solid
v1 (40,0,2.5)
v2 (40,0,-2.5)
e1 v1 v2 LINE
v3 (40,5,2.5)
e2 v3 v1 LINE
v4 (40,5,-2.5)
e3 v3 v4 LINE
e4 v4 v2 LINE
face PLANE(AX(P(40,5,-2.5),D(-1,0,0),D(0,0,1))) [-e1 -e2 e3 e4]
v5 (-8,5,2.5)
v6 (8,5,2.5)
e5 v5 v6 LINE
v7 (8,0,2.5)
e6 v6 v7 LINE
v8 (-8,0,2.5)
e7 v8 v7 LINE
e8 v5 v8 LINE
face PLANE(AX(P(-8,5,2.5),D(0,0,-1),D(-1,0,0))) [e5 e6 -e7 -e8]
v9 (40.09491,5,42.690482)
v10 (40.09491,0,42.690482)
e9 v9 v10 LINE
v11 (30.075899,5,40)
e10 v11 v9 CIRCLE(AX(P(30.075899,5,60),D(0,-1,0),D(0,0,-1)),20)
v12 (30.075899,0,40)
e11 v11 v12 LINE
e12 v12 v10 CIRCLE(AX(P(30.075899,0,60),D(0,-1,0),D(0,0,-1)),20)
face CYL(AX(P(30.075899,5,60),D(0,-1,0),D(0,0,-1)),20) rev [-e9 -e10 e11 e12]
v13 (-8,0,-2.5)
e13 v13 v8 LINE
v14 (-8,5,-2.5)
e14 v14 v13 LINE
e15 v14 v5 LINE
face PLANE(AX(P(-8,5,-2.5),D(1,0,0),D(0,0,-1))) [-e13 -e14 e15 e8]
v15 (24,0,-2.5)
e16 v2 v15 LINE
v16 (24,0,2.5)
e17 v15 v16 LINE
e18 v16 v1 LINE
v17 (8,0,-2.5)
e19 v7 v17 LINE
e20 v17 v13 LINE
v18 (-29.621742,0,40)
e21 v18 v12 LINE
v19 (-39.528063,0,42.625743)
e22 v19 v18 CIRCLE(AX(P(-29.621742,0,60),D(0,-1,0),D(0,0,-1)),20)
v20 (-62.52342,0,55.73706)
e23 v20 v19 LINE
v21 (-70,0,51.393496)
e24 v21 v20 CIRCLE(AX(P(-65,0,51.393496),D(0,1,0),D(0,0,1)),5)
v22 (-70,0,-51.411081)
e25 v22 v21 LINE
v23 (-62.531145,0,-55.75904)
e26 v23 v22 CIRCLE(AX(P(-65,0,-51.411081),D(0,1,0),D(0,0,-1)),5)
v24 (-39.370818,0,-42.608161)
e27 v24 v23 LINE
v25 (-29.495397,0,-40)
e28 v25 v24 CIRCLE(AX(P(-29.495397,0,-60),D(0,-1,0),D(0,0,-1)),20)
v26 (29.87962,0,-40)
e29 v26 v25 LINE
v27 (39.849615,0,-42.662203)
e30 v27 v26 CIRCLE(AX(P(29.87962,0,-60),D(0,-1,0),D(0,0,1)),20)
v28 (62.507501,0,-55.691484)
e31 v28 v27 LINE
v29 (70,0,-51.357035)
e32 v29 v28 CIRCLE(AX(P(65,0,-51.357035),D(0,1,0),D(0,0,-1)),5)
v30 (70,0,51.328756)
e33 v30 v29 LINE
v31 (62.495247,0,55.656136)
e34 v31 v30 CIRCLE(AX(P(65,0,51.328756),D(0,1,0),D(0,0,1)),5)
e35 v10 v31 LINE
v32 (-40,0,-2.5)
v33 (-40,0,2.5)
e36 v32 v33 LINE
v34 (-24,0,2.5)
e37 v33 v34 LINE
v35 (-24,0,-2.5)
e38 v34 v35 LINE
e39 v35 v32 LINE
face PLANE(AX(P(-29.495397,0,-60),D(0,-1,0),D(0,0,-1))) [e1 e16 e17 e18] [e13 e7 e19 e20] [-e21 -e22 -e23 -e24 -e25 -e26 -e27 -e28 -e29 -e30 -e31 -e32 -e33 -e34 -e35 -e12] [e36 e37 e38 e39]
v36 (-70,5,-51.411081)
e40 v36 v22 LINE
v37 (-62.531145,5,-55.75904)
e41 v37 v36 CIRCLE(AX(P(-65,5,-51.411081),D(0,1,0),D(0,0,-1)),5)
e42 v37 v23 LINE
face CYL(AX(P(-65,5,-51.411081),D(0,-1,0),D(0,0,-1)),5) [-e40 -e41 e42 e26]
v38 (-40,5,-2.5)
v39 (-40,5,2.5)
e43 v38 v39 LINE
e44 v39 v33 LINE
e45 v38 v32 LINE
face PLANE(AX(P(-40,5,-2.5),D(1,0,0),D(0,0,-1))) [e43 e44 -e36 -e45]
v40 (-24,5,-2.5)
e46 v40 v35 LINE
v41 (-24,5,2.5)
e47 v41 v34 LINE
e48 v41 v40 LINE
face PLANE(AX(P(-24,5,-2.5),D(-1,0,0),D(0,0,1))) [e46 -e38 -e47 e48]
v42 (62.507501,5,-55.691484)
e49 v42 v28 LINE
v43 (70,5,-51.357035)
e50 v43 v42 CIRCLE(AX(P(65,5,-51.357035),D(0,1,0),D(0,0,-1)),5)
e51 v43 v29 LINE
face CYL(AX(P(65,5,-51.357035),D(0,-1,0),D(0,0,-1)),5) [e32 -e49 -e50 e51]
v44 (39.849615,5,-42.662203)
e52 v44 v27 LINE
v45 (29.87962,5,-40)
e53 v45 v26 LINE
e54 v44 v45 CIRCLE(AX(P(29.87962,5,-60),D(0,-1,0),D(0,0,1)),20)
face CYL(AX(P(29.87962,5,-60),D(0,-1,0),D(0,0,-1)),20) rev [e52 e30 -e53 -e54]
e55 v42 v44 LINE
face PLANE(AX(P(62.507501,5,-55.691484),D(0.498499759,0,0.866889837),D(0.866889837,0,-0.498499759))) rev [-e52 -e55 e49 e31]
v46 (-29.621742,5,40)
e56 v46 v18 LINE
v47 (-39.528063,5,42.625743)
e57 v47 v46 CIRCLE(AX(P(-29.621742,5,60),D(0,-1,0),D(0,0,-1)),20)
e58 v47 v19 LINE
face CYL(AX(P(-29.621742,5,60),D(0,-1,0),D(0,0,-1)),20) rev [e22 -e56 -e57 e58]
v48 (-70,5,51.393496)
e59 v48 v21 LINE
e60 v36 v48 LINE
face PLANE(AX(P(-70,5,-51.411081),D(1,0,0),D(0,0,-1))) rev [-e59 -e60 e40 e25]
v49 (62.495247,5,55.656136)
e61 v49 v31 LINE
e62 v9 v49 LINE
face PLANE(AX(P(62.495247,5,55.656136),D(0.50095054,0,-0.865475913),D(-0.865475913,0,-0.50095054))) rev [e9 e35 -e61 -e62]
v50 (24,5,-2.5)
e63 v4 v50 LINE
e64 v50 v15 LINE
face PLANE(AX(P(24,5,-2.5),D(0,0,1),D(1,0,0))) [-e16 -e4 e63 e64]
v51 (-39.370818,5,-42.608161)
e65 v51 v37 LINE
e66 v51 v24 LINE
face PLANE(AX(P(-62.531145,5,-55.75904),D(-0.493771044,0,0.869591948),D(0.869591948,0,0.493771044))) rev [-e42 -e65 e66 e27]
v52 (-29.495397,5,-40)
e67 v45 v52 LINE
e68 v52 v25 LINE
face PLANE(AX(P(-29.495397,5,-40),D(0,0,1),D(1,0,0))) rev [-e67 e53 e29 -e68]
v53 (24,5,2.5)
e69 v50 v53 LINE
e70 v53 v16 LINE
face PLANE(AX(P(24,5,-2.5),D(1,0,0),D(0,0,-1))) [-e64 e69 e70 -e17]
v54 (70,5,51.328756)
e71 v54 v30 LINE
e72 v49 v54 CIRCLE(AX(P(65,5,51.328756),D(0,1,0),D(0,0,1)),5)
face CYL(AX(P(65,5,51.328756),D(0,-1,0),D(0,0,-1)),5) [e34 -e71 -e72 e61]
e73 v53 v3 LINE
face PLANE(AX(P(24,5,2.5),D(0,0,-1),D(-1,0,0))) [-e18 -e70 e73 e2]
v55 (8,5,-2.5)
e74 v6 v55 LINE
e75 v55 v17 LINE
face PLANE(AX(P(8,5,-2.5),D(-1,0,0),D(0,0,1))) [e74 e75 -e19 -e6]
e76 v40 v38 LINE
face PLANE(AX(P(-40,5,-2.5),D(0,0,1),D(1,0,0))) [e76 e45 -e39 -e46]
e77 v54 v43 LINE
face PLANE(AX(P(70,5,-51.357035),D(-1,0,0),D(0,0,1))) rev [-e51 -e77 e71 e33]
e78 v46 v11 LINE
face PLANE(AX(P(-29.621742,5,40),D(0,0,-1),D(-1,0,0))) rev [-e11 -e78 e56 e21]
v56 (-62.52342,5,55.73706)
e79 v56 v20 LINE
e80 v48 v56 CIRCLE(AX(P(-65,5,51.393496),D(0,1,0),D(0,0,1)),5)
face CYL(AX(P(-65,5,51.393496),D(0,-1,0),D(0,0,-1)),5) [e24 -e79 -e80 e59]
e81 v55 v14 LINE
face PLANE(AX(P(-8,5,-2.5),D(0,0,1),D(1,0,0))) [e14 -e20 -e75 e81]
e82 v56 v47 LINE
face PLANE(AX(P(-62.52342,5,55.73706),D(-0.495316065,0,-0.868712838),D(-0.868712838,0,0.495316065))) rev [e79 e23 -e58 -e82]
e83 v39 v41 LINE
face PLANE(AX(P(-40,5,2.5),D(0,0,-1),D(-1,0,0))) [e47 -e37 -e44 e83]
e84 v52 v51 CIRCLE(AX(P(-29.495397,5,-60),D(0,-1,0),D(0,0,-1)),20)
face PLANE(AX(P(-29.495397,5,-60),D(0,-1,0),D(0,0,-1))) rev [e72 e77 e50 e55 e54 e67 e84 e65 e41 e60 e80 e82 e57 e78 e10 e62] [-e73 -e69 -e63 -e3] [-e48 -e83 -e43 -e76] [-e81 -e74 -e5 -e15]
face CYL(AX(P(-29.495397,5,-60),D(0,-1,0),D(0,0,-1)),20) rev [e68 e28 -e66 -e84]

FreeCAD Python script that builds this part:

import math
import FreeCAD as App
import Part
import Sketcher
Q = App.Units.Quantity


def add_polygon(sketch, points):
    """Adds a closed chain of lines whose ends are joined by coincident constraints."""
    first, n = sketch.GeometryCount, len(points)
    for a, b in zip(points, points[1:] + points[:1]):
        sketch.addGeometry(Part.LineSegment(App.Vector(*a, 0), App.Vector(*b, 0)), False)
    for i in range(n):
        sketch.addConstraint(Sketcher.Constraint("Coincident", first + i, 2, first + (i + 1) % n, 1))

doc = App.newDocument("Part")
body = doc.addObject("PartDesign::Body", "Body")

# Sketch on XZ plane
sketch1 = body.newObject("Sketcher::SketchObject", "Sketch")
sketch1.AttachmentSupport = (doc.getObject("XZ_Plane"), [""])
sketch1.MapMode = "FlatFace"
sketch1.addGeometry(Part.LineSegment(App.Vector(30, -40, 0), App.Vector(-29, -40, 0)), False)  # 0
sketch1.addGeometry(Part.ArcOfCircle(Part.Circle(App.Vector(-29, -60, 0), App.Vector(0, 0, 1), 20), math.radians(90), math.radians(120)), False)  # 1
sketch1.addGeometry(Part.LineSegment(App.Vector(-39, -43, 0), App.Vector(-63, -56, 0)), False)  # 2
sketch1.addGeometry(Part.ArcOfCircle(Part.Circle(App.Vector(-65, -51, 0), App.Vector(0, 0, 1), 5), math.radians(180), math.radians(300)), False)  # 3
sketch1.addGeometry(Part.LineSegment(App.Vector(-70, -51, 0), App.Vector(-70, 51, 0)), False)  # 4
sketch1.addGeometry(Part.ArcOfCircle(Part.Circle(App.Vector(-65, 51, 0), App.Vector(0, 0, 1), 5), math.radians(60), math.radians(180)), False)  # 5
sketch1.addGeometry(Part.LineSegment(App.Vector(-63, 56, 0), App.Vector(-40, 43, 0)), False)  # 6
sketch1.addGeometry(Part.ArcOfCircle(Part.Circle(App.Vector(-30, 60, 0), App.Vector(0, 0, 1), 20), math.radians(-120), math.radians(-90)), False)  # 7
sketch1.addGeometry(Part.LineSegment(App.Vector(-30, 40, 0), App.Vector(30, 40, 0)), False)  # 8
sketch1.addGeometry(Part.ArcOfCircle(Part.Circle(App.Vector(30, 60, 0), App.Vector(0, 0, 1), 20), math.radians(-90), math.radians(-60)), False)  # 9
sketch1.addGeometry(Part.LineSegment(App.Vector(40, 43, 0), App.Vector(62, 56, 0)), False)  # 10
sketch1.addGeometry(Part.ArcOfCircle(Part.Circle(App.Vector(65, 51, 0), App.Vector(0, 0, 1), 5), math.radians(0), math.radians(120)), False)  # 11
sketch1.addGeometry(Part.LineSegment(App.Vector(70, 51, 0), App.Vector(70, -51, 0)), False)  # 12
sketch1.addGeometry(Part.ArcOfCircle(Part.Circle(App.Vector(65, -51, 0), App.Vector(0, 0, 1), 5), math.radians(-120), math.radians(0)), False)  # 13
sketch1.addGeometry(Part.LineSegment(App.Vector(63, -56, 0), App.Vector(40, -43, 0)), False)  # 14
sketch1.addGeometry(Part.ArcOfCircle(Part.Circle(App.Vector(30, -60, 0), App.Vector(0, 0, 1), 20), math.radians(60), math.radians(90)), False)  # 15
add_polygon(sketch1, [(24, 2), (24, -2), (40, -2), (40, 2)])  # lines 16-19
add_polygon(sketch1, [(-8, 2), (-8, -2), (8, -2), (8, 2)])  # lines 20-23
add_polygon(sketch1, [(-40, 2), (-40, -2), (-24, -2), (-24, 2)])  # lines 24-27
sketch1.addConstraint([
    Sketcher.Constraint("Tangent", 0, 2, 1, 1),
    Sketcher.Constraint("Tangent", 1, 2, 2, 1),
    Sketcher.Constraint("Tangent", 2, 2, 3, 2),
    Sketcher.Constraint("Tangent", 3, 1, 4, 1),
    Sketcher.Constraint("Tangent", 4, 2, 5, 2),
    Sketcher.Constraint("Tangent", 5, 1, 6, 1),
    Sketcher.Constraint("Tangent", 6, 2, 7, 1),
    Sketcher.Constraint("Tangent", 7, 2, 8, 1),
    Sketcher.Constraint("Tangent", 8, 2, 9, 1),
    Sketcher.Constraint("Tangent", 9, 2, 10, 1),
    Sketcher.Constraint("Tangent", 10, 2, 11, 2),
    Sketcher.Constraint("Tangent", 11, 1, 12, 1),
    Sketcher.Constraint("Tangent", 12, 2, 13, 2),
    Sketcher.Constraint("Tangent", 13, 1, 14, 1),
    Sketcher.Constraint("Tangent", 14, 2, 15, 1),
    Sketcher.Constraint("Tangent", 15, 2, 0, 1),
    Sketcher.Constraint("Horizontal", 0),
    Sketcher.Constraint("Vertical", 4),
    Sketcher.Constraint("Horizontal", 8),
    Sketcher.Constraint("Vertical", 12),
    Sketcher.Constraint("Vertical", 16),
    Sketcher.Constraint("Horizontal", 17),
    Sketcher.Constraint("Vertical", 18),
    Sketcher.Constraint("Horizontal", 19),
    Sketcher.Constraint("Vertical", 20),
    Sketcher.Constraint("Horizontal", 21),
    Sketcher.Constraint("Vertical", 22),
    Sketcher.Constraint("Horizontal", 23),
    Sketcher.Constraint("Vertical", 24),
    Sketcher.Constraint("Horizontal", 25),
    Sketcher.Constraint("Vertical", 26),
    Sketcher.Constraint("Horizontal", 27),
    Sketcher.Constraint("Equal", 3, 5),
    Sketcher.Constraint("Equal", 1, 7),
    Sketcher.Constraint("Equal", 7, 9),
    Sketcher.Constraint("Equal", 5, 11),
    Sketcher.Constraint("Equal", 11, 13),
    Sketcher.Constraint("Equal", 9, 15),
    Sketcher.Constraint("Symmetric", 20, 2, 22, 2, -1, 1),
    Sketcher.Constraint("Symmetric", 18, 2, 24, 2, -1, 1),
    Sketcher.Constraint("Symmetric", 16, 2, 26, 2, -1, 1),
    Sketcher.Constraint("Horizontal", 17, 2, 20, 2),
    Sketcher.Constraint("Horizontal", 19, 2, 22, 2),
    Sketcher.Constraint("Equal", 19, 21),
    Sketcher.Constraint("Radius", 1, Q("20 mm")),
    Sketcher.Constraint("Radius", 3, Q("5 mm")),
    Sketcher.Constraint("DistanceX", 17, 1, 17, 2, Q("16 mm")),
    Sketcher.Constraint("DistanceY", 16, 2, 16, 1, Q("5 mm")),
    Sketcher.Constraint("DistanceY", 1, 3, -1, 1, Q("60 mm")),
    Sketcher.Constraint("DistanceX", 3, 3, -1, 1, Q("65 mm")),
    Sketcher.Constraint("DistanceY", -1, 1, 7, 3, Q("60 mm")),
    Sketcher.Constraint("DistanceX", -1, 1, 11, 3, Q("65 mm")),
    Sketcher.Constraint("DistanceX", -1, 1, 16, 2, Q("24 mm")),
    Sketcher.Constraint("DistanceX", 8, 1, 8, 2, Q("59.697641 mm")),
    Sketcher.Constraint("DistanceY", 12, 2, 12, 1, Q("102.685791 mm")),
    Sketcher.Constraint("DistanceX", -1, 1, 9, 3, Q("30.075899 mm")),
    Sketcher.Constraint("DistanceX", -1, 1, 13, 1, Q("62.507501 mm")),
    Sketcher.Constraint("DistanceX", 5, 1, 1, 2, Q("23.152602 mm")),
    Sketcher.Constraint("DistanceX", 1, 3, 13, 1, Q("92.002898 mm")),
    Sketcher.Constraint("DistanceX", 0, 2, 0, 1, Q("59.375017 mm")),
    Sketcher.Constraint("DistanceY", 4, 1, 4, 2, Q("102.804577 mm")),
])
pad1 = body.newObject("PartDesign::Pad", "Pad")
pad1.Profile = sketch1
pad1.Length = 5
pad1.Reversed = True

doc.recompute()
